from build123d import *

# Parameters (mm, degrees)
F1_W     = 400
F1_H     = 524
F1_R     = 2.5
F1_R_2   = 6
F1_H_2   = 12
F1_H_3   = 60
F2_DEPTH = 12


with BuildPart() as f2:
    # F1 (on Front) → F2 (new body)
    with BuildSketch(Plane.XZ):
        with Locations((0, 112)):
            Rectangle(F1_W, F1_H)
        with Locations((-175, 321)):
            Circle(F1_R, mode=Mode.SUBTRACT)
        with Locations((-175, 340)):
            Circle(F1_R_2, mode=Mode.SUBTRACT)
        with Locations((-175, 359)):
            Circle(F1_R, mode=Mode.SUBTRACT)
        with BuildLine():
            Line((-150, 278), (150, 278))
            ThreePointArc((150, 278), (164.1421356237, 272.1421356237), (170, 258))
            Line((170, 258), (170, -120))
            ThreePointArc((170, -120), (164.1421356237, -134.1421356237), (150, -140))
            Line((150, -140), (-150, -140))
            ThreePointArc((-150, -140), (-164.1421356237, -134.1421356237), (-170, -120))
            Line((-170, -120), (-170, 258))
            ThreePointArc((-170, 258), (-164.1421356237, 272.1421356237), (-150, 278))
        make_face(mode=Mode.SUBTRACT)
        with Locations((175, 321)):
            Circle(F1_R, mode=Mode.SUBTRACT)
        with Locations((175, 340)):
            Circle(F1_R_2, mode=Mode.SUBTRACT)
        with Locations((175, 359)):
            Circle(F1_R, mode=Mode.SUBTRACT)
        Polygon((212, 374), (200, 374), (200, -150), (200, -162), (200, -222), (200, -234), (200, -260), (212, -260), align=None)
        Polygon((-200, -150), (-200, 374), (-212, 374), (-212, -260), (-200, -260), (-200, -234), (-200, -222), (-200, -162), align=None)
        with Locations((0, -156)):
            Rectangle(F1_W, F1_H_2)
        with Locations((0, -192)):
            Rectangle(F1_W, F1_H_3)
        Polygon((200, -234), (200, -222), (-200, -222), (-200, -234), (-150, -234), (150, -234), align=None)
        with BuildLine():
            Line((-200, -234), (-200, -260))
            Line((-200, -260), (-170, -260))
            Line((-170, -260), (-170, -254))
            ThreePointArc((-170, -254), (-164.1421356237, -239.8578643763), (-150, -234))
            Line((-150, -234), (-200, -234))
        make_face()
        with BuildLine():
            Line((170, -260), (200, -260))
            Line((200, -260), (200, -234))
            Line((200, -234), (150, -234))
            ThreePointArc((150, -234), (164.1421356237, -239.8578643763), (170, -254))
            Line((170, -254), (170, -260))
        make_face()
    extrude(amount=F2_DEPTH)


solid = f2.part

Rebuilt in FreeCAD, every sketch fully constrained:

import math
import FreeCAD as App
import Part
import Sketcher
from FreeCAD import Vector
Q = App.Units.Quantity

doc = App.newDocument("Part")
body = doc.addObject("PartDesign::Body", "Body")

# Sketch on XZ plane
sketch1 = doc.addObject("Sketcher::SketchObject", "Sketch")
body.addObject(sketch1)
sketch1.AttachmentSupport = (doc.XZ_Plane, [""])
sketch1.MapMode = "FlatFace"
sketch1.addGeometry([
    Part.LineSegment(Vector(212, -260, 0), Vector(212, 374, 0)),  # 0
    Part.LineSegment(Vector(212, 374, 0), Vector(-212, 374, 0)),  # 1
    Part.LineSegment(Vector(-212, 374, 0), Vector(-212, -260, 0)),  # 2
    Part.LineSegment(Vector(-212, -260, 0), Vector(-170, -260, 0)),  # 3
    Part.LineSegment(Vector(-170, -260, 0), Vector(-170, -254, 0)),  # 4
    Part.ArcOfCircle(Part.Circle(Vector(-150, -254, 0), Vector(0, 0, 1), 20), math.radians(90), math.radians(180)),  # 5
    Part.LineSegment(Vector(-150, -234, 0), Vector(150, -234, 0)),  # 6
    Part.ArcOfCircle(Part.Circle(Vector(150, -254, 0), Vector(0, 0, 1), 20), math.radians(0), math.radians(90)),  # 7
    Part.LineSegment(Vector(170, -254, 0), Vector(170, -260, 0)),  # 8
    Part.LineSegment(Vector(170, -260, 0), Vector(212, -260, 0)),  # 9
    Part.ArcOfCircle(Part.Circle(Vector(-150, 258, 0), Vector(0, 0, 1), 20), math.radians(90), math.radians(180)),  # 10
    Part.LineSegment(Vector(-150, 278, 0), Vector(150, 278, 0)),  # 11
    Part.ArcOfCircle(Part.Circle(Vector(150, 258, 0), Vector(0, 0, 1), 20), math.radians(0), math.radians(90)),  # 12
    Part.LineSegment(Vector(170, 258, 0), Vector(170, -120, 0)),  # 13
    Part.ArcOfCircle(Part.Circle(Vector(150, -120, 0), Vector(0, 0, 1), 20), math.radians(-90), math.radians(0)),  # 14
    Part.LineSegment(Vector(150, -140, 0), Vector(-150, -140, 0)),  # 15
    Part.ArcOfCircle(Part.Circle(Vector(-150, -120, 0), Vector(0, 0, 1), 20), math.radians(180), math.radians(270)),  # 16
    Part.LineSegment(Vector(-170, -120, 0), Vector(-170, 258, 0)),  # 17
    Part.Circle(Vector(-175, 321, 0), Vector(0, 0, 1), 2.5),  # 18
    Part.Circle(Vector(-175, 340, 0), Vector(0, 0, 1), 6),  # 19
    Part.Circle(Vector(-175, 359, 0), Vector(0, 0, 1), 2.5),  # 20
    Part.Circle(Vector(175, 321, 0), Vector(0, 0, 1), 2.5),  # 21
    Part.Circle(Vector(175, 340, 0), Vector(0, 0, 1), 6),  # 22
    Part.Circle(Vector(175, 359, 0), Vector(0, 0, 1), 2.5),  # 23
], False)
sketch1.addConstraint([
    Sketcher.Constraint("Coincident", 0, 2, 1, 1),
    Sketcher.Constraint("Coincident", 1, 2, 2, 1),
    Sketcher.Constraint("Coincident", 2, 2, 3, 1),
    Sketcher.Constraint("Coincident", 3, 2, 4, 1),
    Sketcher.Constraint("Tangent", 4, 2, 5, 2),
    Sketcher.Constraint("Tangent", 5, 1, 6, 1),
    Sketcher.Constraint("Tangent", 6, 2, 7, 2),
    Sketcher.Constraint("Tangent", 7, 1, 8, 1),
    Sketcher.Constraint("Coincident", 8, 2, 9, 1),
    Sketcher.Constraint("Coincident", 9, 2, 0, 1),
    Sketcher.Constraint("Tangent", 10, 1, 11, 1),
    Sketcher.Constraint("Tangent", 11, 2, 12, 2),
    Sketcher.Constraint("Tangent", 12, 1, 13, 1),
    Sketcher.Constraint("Tangent", 13, 2, 14, 2),
    Sketcher.Constraint("Tangent", 14, 1, 15, 1),
    Sketcher.Constraint("Tangent", 15, 2, 16, 2),
    Sketcher.Constraint("Tangent", 16, 1, 17, 1),
    Sketcher.Constraint("Tangent", 17, 2, 10, 2),
    Sketcher.Constraint("Vertical", 0),
    Sketcher.Constraint("Horizontal", 1),
    Sketcher.Constraint("Vertical", 2),
    Sketcher.Constraint("Horizontal", 3),
    Sketcher.Constraint("Vertical", 4),
    Sketcher.Constraint("Horizontal", 6),
    Sketcher.Constraint("Vertical", 8),
    Sketcher.Constraint("Horizontal", 9),
    Sketcher.Constraint("Horizontal", 11),
    Sketcher.Constraint("Vertical", 13),
    Sketcher.Constraint("Horizontal", 15),
    Sketcher.Constraint("Vertical", 17),
    Sketcher.Constraint("Equal", 5, 7),
    Sketcher.Constraint("Equal", 7, 10),
    Sketcher.Constraint("Equal", 10, 12),
    Sketcher.Constraint("Equal", 12, 14),
    Sketcher.Constraint("Equal", 14, 16),
    Sketcher.Constraint("Equal", 18, 20),
    Sketcher.Constraint("Equal", 20, 21),
    Sketcher.Constraint("Equal", 19, 22),
    Sketcher.Constraint("Equal", 21, 23),
    Sketcher.Constraint("Symmetric", 18, 3, 21, 3, -2),
    Sketcher.Constraint("Symmetric", 19, 3, 22, 3, -2),
    Sketcher.Constraint("Symmetric", 20, 3, 23, 3, -2),
    Sketcher.Constraint("Symmetric", 3, 2, 8, 2, -2),
    Sketcher.Constraint("Vertical", 5, 3, 10, 3),
    Sketcher.Constraint("Vertical", 7, 3, 12, 3),
    Sketcher.Constraint("Vertical", 18, 3, 19, 3),
    Sketcher.Constraint("Vertical", 19, 3, 20, 3),
    Sketcher.Constraint("Equal", 3, 9),
    Sketcher.Constraint("Diameter", 18, Q("5 mm")),
    Sketcher.Constraint("Diameter", 19, Q("12 mm")),
    Sketcher.Constraint("Radius", 5, Q("20 mm")),
    Sketcher.Constraint("DistanceX", 1, 2, 1, 1, Q("424 mm")),
    Sketcher.Constraint("DistanceX", 3, 1, 3, 2, Q("42 mm")),
    Sketcher.Constraint("DistanceY", 0, 1, 0, 2, Q("634 mm")),
    Sketcher.Constraint("DistanceY", 4, 1, 4, 2, Q("6 mm")),
    Sketcher.Constraint("DistanceY", 13, 2, 13, 1, Q("378 mm")),
    Sketcher.Constraint("DistanceY", 5, 3, -1, 1, Q("254 mm")),
    Sketcher.Constraint("DistanceY", -1, 1, 10, 3, Q("258 mm")),
    Sketcher.Constraint("DistanceX", 18, 3, -1, 1, Q("175 mm")),
    Sketcher.Constraint("DistanceY", -1, 1, 18, 3, Q("321 mm")),
    Sketcher.Constraint("DistanceY", -1, 1, 19, 3, Q("340 mm")),
    Sketcher.Constraint("DistanceY", -1, 1, 20, 3, Q("359 mm")),
])
pad1 = doc.addObject("PartDesign::Pad", "Pad")
body.addObject(pad1)
pad1.Profile = sketch1
pad1.Length = 12

doc.recompute()
